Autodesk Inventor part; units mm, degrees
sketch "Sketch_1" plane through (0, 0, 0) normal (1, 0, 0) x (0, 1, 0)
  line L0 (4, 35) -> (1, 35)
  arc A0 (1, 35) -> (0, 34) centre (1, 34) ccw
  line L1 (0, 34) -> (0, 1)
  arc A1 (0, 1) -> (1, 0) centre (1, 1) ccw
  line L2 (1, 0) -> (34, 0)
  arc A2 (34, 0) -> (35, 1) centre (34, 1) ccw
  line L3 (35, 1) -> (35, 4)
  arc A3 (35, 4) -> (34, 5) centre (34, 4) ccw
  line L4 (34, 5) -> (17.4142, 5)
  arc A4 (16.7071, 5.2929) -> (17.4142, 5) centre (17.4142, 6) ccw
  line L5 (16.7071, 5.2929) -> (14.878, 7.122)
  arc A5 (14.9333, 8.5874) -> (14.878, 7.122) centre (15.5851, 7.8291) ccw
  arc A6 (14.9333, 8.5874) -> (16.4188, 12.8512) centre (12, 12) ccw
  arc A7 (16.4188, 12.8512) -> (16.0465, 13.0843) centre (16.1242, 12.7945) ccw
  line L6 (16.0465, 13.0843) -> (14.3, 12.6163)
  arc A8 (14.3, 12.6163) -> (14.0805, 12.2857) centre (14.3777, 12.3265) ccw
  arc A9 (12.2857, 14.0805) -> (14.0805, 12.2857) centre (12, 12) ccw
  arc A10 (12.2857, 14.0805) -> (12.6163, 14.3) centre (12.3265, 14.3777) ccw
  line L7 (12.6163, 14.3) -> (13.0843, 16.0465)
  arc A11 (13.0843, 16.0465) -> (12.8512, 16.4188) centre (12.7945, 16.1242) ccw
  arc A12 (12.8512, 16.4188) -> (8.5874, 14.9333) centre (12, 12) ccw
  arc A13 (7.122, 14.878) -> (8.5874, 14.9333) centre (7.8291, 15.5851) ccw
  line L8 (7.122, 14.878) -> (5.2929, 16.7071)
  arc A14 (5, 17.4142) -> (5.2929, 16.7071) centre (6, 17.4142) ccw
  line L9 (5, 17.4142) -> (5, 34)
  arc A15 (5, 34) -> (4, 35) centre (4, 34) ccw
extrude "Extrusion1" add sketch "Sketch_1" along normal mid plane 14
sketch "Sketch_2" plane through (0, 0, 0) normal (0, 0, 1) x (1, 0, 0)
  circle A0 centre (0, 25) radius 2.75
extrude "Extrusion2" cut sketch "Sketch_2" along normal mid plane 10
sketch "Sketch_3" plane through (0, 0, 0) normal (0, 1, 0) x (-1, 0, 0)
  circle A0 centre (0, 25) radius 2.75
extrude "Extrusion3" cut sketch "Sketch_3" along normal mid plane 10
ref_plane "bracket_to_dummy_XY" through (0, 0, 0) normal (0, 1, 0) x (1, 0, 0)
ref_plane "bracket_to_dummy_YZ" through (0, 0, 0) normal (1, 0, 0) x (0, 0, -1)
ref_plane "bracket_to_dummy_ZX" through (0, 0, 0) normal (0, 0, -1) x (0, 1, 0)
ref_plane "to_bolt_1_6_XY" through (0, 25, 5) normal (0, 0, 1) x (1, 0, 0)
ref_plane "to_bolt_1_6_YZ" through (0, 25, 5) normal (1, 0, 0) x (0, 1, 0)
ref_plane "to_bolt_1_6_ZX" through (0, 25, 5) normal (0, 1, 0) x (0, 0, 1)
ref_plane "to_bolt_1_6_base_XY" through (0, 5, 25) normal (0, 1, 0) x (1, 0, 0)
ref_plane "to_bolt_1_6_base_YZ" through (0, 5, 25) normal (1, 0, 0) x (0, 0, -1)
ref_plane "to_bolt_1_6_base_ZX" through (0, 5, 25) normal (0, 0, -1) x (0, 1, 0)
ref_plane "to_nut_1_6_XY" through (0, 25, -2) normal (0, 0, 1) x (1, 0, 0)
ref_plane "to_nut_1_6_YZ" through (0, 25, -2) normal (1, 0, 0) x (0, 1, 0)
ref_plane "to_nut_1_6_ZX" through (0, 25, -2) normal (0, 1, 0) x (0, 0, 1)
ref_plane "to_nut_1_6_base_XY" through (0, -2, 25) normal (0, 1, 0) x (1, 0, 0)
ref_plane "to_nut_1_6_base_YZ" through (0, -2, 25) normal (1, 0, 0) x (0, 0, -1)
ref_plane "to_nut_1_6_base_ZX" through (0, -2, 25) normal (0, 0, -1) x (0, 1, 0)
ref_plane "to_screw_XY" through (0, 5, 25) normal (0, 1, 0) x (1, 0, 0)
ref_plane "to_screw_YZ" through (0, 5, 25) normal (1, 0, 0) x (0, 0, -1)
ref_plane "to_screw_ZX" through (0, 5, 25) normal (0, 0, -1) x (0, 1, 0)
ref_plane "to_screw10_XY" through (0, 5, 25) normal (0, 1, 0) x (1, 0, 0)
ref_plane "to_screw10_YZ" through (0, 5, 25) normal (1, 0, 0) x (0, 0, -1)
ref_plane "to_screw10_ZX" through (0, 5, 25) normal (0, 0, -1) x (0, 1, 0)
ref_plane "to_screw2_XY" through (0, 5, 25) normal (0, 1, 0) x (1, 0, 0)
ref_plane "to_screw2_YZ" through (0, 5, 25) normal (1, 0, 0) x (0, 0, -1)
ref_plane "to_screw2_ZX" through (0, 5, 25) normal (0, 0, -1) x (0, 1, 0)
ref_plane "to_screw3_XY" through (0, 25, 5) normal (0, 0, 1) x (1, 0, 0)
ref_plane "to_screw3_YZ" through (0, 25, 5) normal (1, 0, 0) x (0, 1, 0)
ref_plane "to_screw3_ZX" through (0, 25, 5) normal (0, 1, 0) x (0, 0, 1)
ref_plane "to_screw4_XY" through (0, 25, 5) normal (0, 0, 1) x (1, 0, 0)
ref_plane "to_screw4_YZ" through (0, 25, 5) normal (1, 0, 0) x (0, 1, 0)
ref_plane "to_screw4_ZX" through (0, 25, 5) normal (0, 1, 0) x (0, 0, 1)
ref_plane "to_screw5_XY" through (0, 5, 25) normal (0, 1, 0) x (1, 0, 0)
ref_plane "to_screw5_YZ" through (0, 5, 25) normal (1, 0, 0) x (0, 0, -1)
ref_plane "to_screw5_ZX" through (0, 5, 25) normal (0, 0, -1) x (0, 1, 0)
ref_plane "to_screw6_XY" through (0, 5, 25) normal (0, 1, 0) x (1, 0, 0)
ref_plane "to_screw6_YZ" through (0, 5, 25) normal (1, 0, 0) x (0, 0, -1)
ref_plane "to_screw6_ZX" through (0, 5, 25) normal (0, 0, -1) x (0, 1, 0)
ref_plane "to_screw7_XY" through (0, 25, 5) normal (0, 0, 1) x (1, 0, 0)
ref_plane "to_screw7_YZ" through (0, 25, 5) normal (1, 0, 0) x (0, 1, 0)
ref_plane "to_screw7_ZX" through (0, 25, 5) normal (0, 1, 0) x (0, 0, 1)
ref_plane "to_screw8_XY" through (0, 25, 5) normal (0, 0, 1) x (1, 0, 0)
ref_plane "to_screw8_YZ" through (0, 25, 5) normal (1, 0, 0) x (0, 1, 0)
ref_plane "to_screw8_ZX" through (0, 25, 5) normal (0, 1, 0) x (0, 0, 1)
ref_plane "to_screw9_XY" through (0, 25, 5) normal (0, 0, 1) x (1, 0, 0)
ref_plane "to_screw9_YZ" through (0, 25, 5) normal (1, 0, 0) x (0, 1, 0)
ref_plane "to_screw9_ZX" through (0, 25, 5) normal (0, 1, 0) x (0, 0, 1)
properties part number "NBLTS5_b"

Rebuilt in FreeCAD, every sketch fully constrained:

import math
import FreeCAD as App
import Part
import Sketcher
from FreeCAD import Vector
Q = App.Units.Quantity

doc = App.newDocument("Part")
body = doc.addObject("PartDesign::Body", "Body")

sketch1 = body.newObject("Sketcher::SketchObject", "Sketch")
sketch1.AttachmentSupport = (doc.getObject("YZ_Plane"), [""])
sketch1.MapMode = "FlatFace"
sketch1.addGeometry([
    Part.ArcOfCircle(Part.Circle(Vector(4, 34, 0), Vector(0, 0, 1), 1), math.radians(0), math.radians(90)),
    Part.LineSegment(Vector(4, 35, 0), Vector(1, 35, 0)),
    Part.ArcOfCircle(Part.Circle(Vector(1, 34, 0), Vector(0, 0, 1), 1), math.radians(90), math.radians(180)),
    Part.LineSegment(Vector(0, 34, 0), Vector(0, 1, 0)),
    Part.ArcOfCircle(Part.Circle(Vector(1, 1, 0), Vector(0, 0, 1), 1), math.radians(180), math.radians(270)),
    Part.LineSegment(Vector(1, 0, 0), Vector(34, 0, 0)),
    Part.ArcOfCircle(Part.Circle(Vector(34, 1, 0), Vector(0, 0, 1), 1), math.radians(-90), math.radians(0)),
    Part.LineSegment(Vector(35, 1, 0), Vector(35, 4, 0)),
    Part.ArcOfCircle(Part.Circle(Vector(34, 4, 0), Vector(0, 0, 1), 1), math.radians(0), math.radians(90)),
    Part.LineSegment(Vector(34, 5, 0), Vector(17.41, 5, 0)),
    Part.ArcOfCircle(Part.Circle(Vector(17.41, 6, 0), Vector(0, 0, 1), 1), math.radians(-135), math.radians(-90)),
    Part.LineSegment(Vector(16.71, 5.29, 0), Vector(14.88, 7.12, 0)),
    Part.ArcOfCircle(Part.Circle(Vector(15.59, 7.83, 0), Vector(0, 0, 1), 1), math.radians(131), math.radians(225)),
    Part.ArcOfCircle(Part.Circle(Vector(12, 12, 0), Vector(0, 0, 1), 4.5), math.radians(-49), math.radians(11)),
    Part.ArcOfCircle(Part.Circle(Vector(16.12, 12.79, 0), Vector(0, 0, 1), 0.3), math.radians(11), math.radians(105)),
    Part.LineSegment(Vector(16.05, 13.08, 0), Vector(14.3, 12.62, 0)),
    Part.ArcOfCircle(Part.Circle(Vector(14.38, 12.33, 0), Vector(0, 0, 1), 0.3), math.radians(105), math.radians(188)),
    Part.ArcOfCircle(Part.Circle(Vector(12, 12, 0), Vector(0, 0, 1), 2.1), math.radians(82), math.radians(368)),
    Part.ArcOfCircle(Part.Circle(Vector(12.33, 14.38, 0), Vector(0, 0, 1), 0.3), math.radians(-98), math.radians(-15)),
    Part.LineSegment(Vector(12.62, 14.3, 0), Vector(13.08, 16.05, 0)),
    Part.ArcOfCircle(Part.Circle(Vector(12.79, 16.12, 0), Vector(0, 0, 1), 0.3), math.radians(-15), math.radians(79)),
    Part.ArcOfCircle(Part.Circle(Vector(12, 12, 0), Vector(0, 0, 1), 4.5), math.radians(79), math.radians(139)),
    Part.ArcOfCircle(Part.Circle(Vector(7.83, 15.59, 0), Vector(0, 0, 1), 1), math.radians(-135), math.radians(-41)),
    Part.LineSegment(Vector(7.12, 14.88, 0), Vector(5.29, 16.71, 0)),
    Part.ArcOfCircle(Part.Circle(Vector(6, 17.41, 0), Vector(0, 0, 1), 1), math.radians(180), math.radians(225)),
    Part.LineSegment(Vector(5, 17.41, 0), Vector(5, 34, 0)),
], False)
sketch1.addConstraint([
    Sketcher.Constraint("Tangent", 0, 2, 1, 1),
    Sketcher.Constraint("Tangent", 1, 2, 2, 1),
    Sketcher.Constraint("Tangent", 2, 2, 3, 1),
    Sketcher.Constraint("Tangent", 3, 2, 4, 1),
    Sketcher.Constraint("Tangent", 4, 2, 5, 1),
    Sketcher.Constraint("Tangent", 5, 2, 6, 1),
    Sketcher.Constraint("Tangent", 6, 2, 7, 1),
    Sketcher.Constraint("Tangent", 7, 2, 8, 1),
    Sketcher.Constraint("Tangent", 8, 2, 9, 1),
    Sketcher.Constraint("Tangent", 9, 2, 10, 2),
    Sketcher.Constraint("Tangent", 10, 1, 11, 1),
    Sketcher.Constraint("Tangent", 11, 2, 12, 2),
    Sketcher.Constraint("Tangent", 12, 1, 13, 1),
    Sketcher.Constraint("Tangent", 13, 2, 14, 1),
    Sketcher.Constraint("Tangent", 14, 2, 15, 1),
    Sketcher.Constraint("Tangent", 15, 2, 16, 1),
    Sketcher.Constraint("Tangent", 16, 2, 17, 2),
    Sketcher.Constraint("Tangent", 17, 1, 18, 1),
    Sketcher.Constraint("Tangent", 18, 2, 19, 1),
    Sketcher.Constraint("Tangent", 19, 2, 20, 1),
    Sketcher.Constraint("Tangent", 20, 2, 21, 1),
    Sketcher.Constraint("Tangent", 21, 2, 22, 2),
    Sketcher.Constraint("Tangent", 22, 1, 23, 1),
    Sketcher.Constraint("Tangent", 23, 2, 24, 2),
    Sketcher.Constraint("Tangent", 24, 1, 25, 1),
    Sketcher.Constraint("Tangent", 25, 2, 0, 1),
    Sketcher.Constraint("Horizontal", 1),
    Sketcher.Constraint("Vertical", 3),
    Sketcher.Constraint("Horizontal", 5),
    Sketcher.Constraint("Vertical", 7),
    Sketcher.Constraint("Horizontal", 9),
    Sketcher.Constraint("Vertical", 25),
    Sketcher.Constraint("Coincident", 17, 3, 13, 3),
    Sketcher.Constraint("Coincident", 21, 3, 13, 3),
    Sketcher.Constraint("Equal", 0, 2),
    Sketcher.Constraint("Equal", 2, 4),
    Sketcher.Constraint("Equal", 4, 6),
    Sketcher.Constraint("Equal", 6, 8),
    Sketcher.Constraint("Equal", 8, 10),
    Sketcher.Constraint("Equal", 10, 12),
    Sketcher.Constraint("Equal", 14, 16),
    Sketcher.Constraint("Equal", 16, 18),
    Sketcher.Constraint("Equal", 18, 20),
    Sketcher.Constraint("Equal", 13, 21),
    Sketcher.Constraint("Equal", 12, 22),
    Sketcher.Constraint("Equal", 22, 24),
    Sketcher.Constraint("PointOnObject", 2, 2, -2),
    Sketcher.Constraint("PointOnObject", 4, 2, -1),
    Sketcher.Constraint("Parallel", 11, 23),
    Sketcher.Constraint("Equal", 5, 3),
    Sketcher.Constraint("Equal", 1, 7),
    Sketcher.Constraint("Equal", 9, 25),
    Sketcher.Constraint("Equal", 15, 19),
    Sketcher.Constraint("Equal", 11, 23),
    Sketcher.Constraint("Radius", 0, 1.0),
    Sketcher.Constraint("Radius", 13, 4.5),
    Sketcher.Constraint("Radius", 14, 0.3),
    Sketcher.Constraint("Radius", 17, 2.1),
    Sketcher.Constraint("DistanceX", 1, 2, 1, 1, 3.0),
    Sketcher.Constraint("DistanceX", 5, 1, 5, 2, 33.0),
    Sketcher.Constraint("Angle", 11, Q("135 deg")),
    Sketcher.Constraint("Angle", 15, Q("-164.9992 deg")),
    Sketcher.Constraint("Angle", 19, Q("74.9992 deg")),
    Sketcher.Constraint("DistanceX", -1, 1, 13, 3, 12.0),
    Sketcher.Constraint("DistanceX", -1, 1, 15, 2, 14.3),
    Sketcher.Constraint("DistanceX", 14, 3, 10, 3, 1.29),
])
pad1 = body.newObject("PartDesign::Pad", "Pad")
pad1.Profile = sketch1
pad1.Length = 14
pad1.Midplane = True

sketch2 = body.newObject("Sketcher::SketchObject", "Sketch001")
sketch2.AttachmentSupport = (doc.getObject("XY_Plane"), [""])
sketch2.MapMode = "FlatFace"
sketch2.addGeometry(Part.Circle(Vector(0, 25, 0), Vector(0, 0, 1), 2.8), False)
sketch2.addConstraint([
    Sketcher.Constraint("PointOnObject", 0, 3, -2),
    Sketcher.Constraint("Diameter", 0, 5.5),
    Sketcher.Constraint("DistanceY", -1, 1, 0, 3, 25.0),
])
pocket1 = body.newObject("PartDesign::Pocket", "Pocket")
pocket1.Profile = sketch2
pocket1.Length = 10
pocket1.Midplane = True

sketch3 = body.newObject("Sketcher::SketchObject", "Sketch002")
sketch3.AttachmentSupport = (doc.getObject("XZ_Plane"), [""])
sketch3.MapMode = "FlatFace"
sketch3.addGeometry(Part.Circle(Vector(0, 25, 0), Vector(0, 0, 1), 2.8), False)
sketch3.addConstraint([
    Sketcher.Constraint("PointOnObject", 0, 3, -2),
    Sketcher.Constraint("Diameter", 0, 5.5),
    Sketcher.Constraint("DistanceY", -1, 1, 0, 3, 25.0),
])
pocket2 = body.newObject("PartDesign::Pocket", "Pocket001")
pocket2.Profile = sketch3
pocket2.Length = 10
pocket2.Midplane = True

doc.recompute()
